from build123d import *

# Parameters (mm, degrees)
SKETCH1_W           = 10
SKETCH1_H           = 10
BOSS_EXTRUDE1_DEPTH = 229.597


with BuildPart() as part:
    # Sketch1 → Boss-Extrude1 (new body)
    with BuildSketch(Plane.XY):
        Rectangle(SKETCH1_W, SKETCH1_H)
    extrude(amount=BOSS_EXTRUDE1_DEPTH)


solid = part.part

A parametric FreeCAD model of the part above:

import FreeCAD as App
import Part
import Sketcher
Q = App.Units.Quantity

doc = App.newDocument("Part")
params = doc.addObject("Spreadsheet::Sheet", "Params")
for row, (alias, value) in enumerate([
    ("sketch1_width", "10 mm"),
    ("pad1_length", "229.597 mm"),
], start=1):
    params.set(f"A{row}", alias)
    params.set(f"B{row}", "=" + value)
    params.setAlias(f"B{row}", alias)

body = doc.addObject("PartDesign::Body", "Body")

# Sketch on XY plane
sketch1 = doc.addObject("Sketcher::SketchObject", "Sketch")
body.addObject(sketch1)
sketch1.AttachmentSupport = (doc.XY_Plane, [""])
sketch1.MapMode = "FlatFace"
sketch1.addGeometry(Part.LineSegment(App.Vector(-5, 5, 0), App.Vector(-5, -5, 0)), False)
sketch1.addGeometry(Part.LineSegment(App.Vector(-5, -5, 0), App.Vector(5, -5, 0)), False)
sketch1.addGeometry(Part.LineSegment(App.Vector(5, -5, 0), App.Vector(5, 5, 0)), False)
sketch1.addGeometry(Part.LineSegment(App.Vector(5, 5, 0), App.Vector(-5, 5, 0)), False)
sketch1.addConstraint(Sketcher.Constraint("Coincident", 0, 2, 1, 1))
sketch1.addConstraint(Sketcher.Constraint("Coincident", 1, 2, 2, 1))
sketch1.addConstraint(Sketcher.Constraint("Coincident", 2, 2, 3, 1))
sketch1.addConstraint(Sketcher.Constraint("Coincident", 3, 2, 0, 1))
sketch1.addConstraint(Sketcher.Constraint("Vertical", 0))
sketch1.addConstraint(Sketcher.Constraint("Horizontal", 1))
sketch1.addConstraint(Sketcher.Constraint("Vertical", 2))
sketch1.addConstraint(Sketcher.Constraint("Horizontal", 3))
sketch1.addConstraint(Sketcher.Constraint("Symmetric", 0, 2, 2, 2, -1, 1))
sketch1.addConstraint(Sketcher.Constraint("Equal", 3, 0))
sketch1.addConstraint(Sketcher.Constraint("DistanceX", 1, 1, 1, 2, Q("10 mm")))
sketch1.setExpression("Constraints[10]", "Params.sketch1_width")
pad1 = doc.addObject("PartDesign::Pad", "Pad")
body.addObject(pad1)
pad1.Profile = sketch1
pad1.setExpression("Length", "Params.pad1_length")

doc.recompute()
